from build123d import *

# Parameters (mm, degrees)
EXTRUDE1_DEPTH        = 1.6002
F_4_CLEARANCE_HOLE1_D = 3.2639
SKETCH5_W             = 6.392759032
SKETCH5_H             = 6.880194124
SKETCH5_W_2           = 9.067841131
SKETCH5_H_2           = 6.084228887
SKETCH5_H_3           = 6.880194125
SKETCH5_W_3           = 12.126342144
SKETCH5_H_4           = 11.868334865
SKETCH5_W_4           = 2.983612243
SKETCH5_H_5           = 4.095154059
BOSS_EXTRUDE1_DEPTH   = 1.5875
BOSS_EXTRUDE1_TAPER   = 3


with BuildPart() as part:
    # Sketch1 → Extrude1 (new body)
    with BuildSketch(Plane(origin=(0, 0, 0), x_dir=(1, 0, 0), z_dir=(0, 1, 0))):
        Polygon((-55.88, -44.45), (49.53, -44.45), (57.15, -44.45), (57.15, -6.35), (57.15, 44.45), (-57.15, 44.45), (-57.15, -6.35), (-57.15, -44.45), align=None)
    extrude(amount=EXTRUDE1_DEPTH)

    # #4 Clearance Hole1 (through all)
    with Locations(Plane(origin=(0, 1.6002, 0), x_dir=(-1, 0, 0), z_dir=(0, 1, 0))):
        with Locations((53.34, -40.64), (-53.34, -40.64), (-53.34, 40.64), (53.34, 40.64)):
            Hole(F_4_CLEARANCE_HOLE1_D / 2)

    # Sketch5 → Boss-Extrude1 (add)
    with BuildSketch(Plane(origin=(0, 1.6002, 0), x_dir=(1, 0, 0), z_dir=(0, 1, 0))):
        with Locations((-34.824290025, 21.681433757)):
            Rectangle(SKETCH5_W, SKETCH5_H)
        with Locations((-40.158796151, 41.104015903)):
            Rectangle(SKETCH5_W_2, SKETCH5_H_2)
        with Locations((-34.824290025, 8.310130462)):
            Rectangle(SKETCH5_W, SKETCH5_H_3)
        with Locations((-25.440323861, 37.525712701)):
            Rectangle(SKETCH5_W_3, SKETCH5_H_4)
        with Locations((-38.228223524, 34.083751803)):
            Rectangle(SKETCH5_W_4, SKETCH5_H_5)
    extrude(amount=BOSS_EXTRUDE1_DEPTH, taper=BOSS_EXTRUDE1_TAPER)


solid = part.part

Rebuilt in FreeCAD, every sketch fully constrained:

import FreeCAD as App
import Part
import Sketcher
from FreeCAD import Vector
Q = App.Units.Quantity


def add_polygon(sketch, points):
    """Adds a closed chain of lines whose ends are joined by coincident constraints."""
    first, n = sketch.GeometryCount, len(points)
    for a, b in zip(points, points[1:] + points[:1]):
        sketch.addGeometry(Part.LineSegment(App.Vector(*a, 0), App.Vector(*b, 0)), False)
    for i in range(n):
        sketch.addConstraint(Sketcher.Constraint("Coincident", first + i, 2, first + (i + 1) % n, 1))

doc = App.newDocument("Part")
body = doc.addObject("PartDesign::Body", "Body")

sketch1 = body.newObject("Sketcher::SketchObject", "Sketch")
sketch1.AttachmentSupport = (doc.getObject("XZ_Plane"), [""])
sketch1.MapMode = "FlatFace"
add_polygon(sketch1, [(57.15, 44.45), (57.15, -44.45), (-57.15, -44.45), (-57.15, 44.45)])
sketch1.addConstraint(Sketcher.Constraint("Vertical", 0))
sketch1.addConstraint(Sketcher.Constraint("Horizontal", 1))
sketch1.addConstraint(Sketcher.Constraint("Vertical", 2))
sketch1.addConstraint(Sketcher.Constraint("Horizontal", 3))
sketch1.addConstraint(Sketcher.Constraint("Symmetric", 0, 2, 2, 2, -1, 1))
sketch1.addConstraint(Sketcher.Constraint("DistanceX", 1, 2, 1, 1, Q("4.5 in")))
sketch1.addConstraint(Sketcher.Constraint("DistanceY", 0, 2, 0, 1, Q("3.5 in")))
pad1 = body.newObject("PartDesign::Pad", "Pad")
pad1.Profile = sketch1
pad1.Length = Q("0.063 in")
pad1.Reversed = True

sketch2 = body.newObject("Sketcher::SketchObject", "Sketch001")
sketch2.AttachmentSupport = (doc.getObject("XZ_Plane"), [""])
sketch2.MapMode = "FlatFace"
sketch2.AttachmentOffset = App.Placement(Vector(0, 0, -0.063 * 25.4), App.Rotation())
sketch2.addGeometry(Part.Circle(Vector(-53.34, -40.64, 0), Vector(0, 0, 1), 1.63195), False)
sketch2.addGeometry(Part.Circle(Vector(53.34, -40.64, 0), Vector(0, 0, 1), 1.63195), False)
sketch2.addGeometry(Part.Circle(Vector(53.34, 40.64, 0), Vector(0, 0, 1), 1.63195), False)
sketch2.addGeometry(Part.Circle(Vector(-53.34, 40.64, 0), Vector(0, 0, 1), 1.63195), False)
sketch2.addConstraint(Sketcher.Constraint("Equal", 0, 1))
sketch2.addConstraint(Sketcher.Constraint("Equal", 1, 2))
sketch2.addConstraint(Sketcher.Constraint("Equal", 2, 3))
sketch2.addConstraint(Sketcher.Constraint("Symmetric", 0, 3, 2, 3, -1, 1))
sketch2.addConstraint(Sketcher.Constraint("Symmetric", 1, 3, 3, 3, -1, 1))
sketch2.addConstraint(Sketcher.Constraint("Symmetric", 0, 3, 1, 3, -2))
sketch2.addConstraint(Sketcher.Constraint("Diameter", 0, Q("0.1285 in")))
sketch2.addConstraint(Sketcher.Constraint("DistanceX", 0, 3, -1, 1, Q("2.1 in")))
sketch2.addConstraint(Sketcher.Constraint("DistanceY", 0, 3, -1, 1, Q("1.6 in")))
doc.recompute()
hole = body.newObject("PartDesign::Hole", "Hole")
hole.Profile = sketch2
hole.ThreadType = "None"
hole.Diameter = Q("0.1285 in")
hole.DepthType = "ThroughAll"
hole.Reversed = True

sketch3 = body.newObject("Sketcher::SketchObject", "Sketch002")
sketch3.AttachmentSupport = (doc.getObject("XZ_Plane"), [""])
sketch3.MapMode = "FlatFace"
sketch3.AttachmentOffset = App.Placement(Vector(0, 0, -0.063 * 25.4), App.Rotation())
add_polygon(sketch3, [(-38.02067, -25.121531), (-38.02067, -18.241337), (-31.627911, -18.241337), (-31.627911, -25.121531)])
add_polygon(sketch3, [(-44.692717, -44.14613), (-44.692717, -38.061901), (-35.624876, -38.061901), (-35.624876, -44.14613)])
add_polygon(sketch3, [(-38.02067, -11.750228), (-38.02067, -4.870033), (-31.627911, -4.870033), (-31.627911, -11.750228)])
add_polygon(sketch3, [(-31.503495, -43.45988), (-31.503495, -31.591545), (-19.377153, -31.591545), (-19.377153, -43.45988)])
add_polygon(sketch3, [(-39.72003, -36.131329), (-39.72003, -32.036175), (-36.736417, -32.036175), (-36.736417, -36.131329)])
sketch3.addConstraint(Sketcher.Constraint("Vertical", 0))
sketch3.addConstraint(Sketcher.Constraint("Horizontal", 1))
sketch3.addConstraint(Sketcher.Constraint("Vertical", 2))
sketch3.addConstraint(Sketcher.Constraint("Horizontal", 3))
sketch3.addConstraint(Sketcher.Constraint("Vertical", 4))
sketch3.addConstraint(Sketcher.Constraint("Horizontal", 5))
sketch3.addConstraint(Sketcher.Constraint("Vertical", 6))
sketch3.addConstraint(Sketcher.Constraint("Horizontal", 7))
sketch3.addConstraint(Sketcher.Constraint("Vertical", 8))
sketch3.addConstraint(Sketcher.Constraint("Horizontal", 9))
sketch3.addConstraint(Sketcher.Constraint("Vertical", 10))
sketch3.addConstraint(Sketcher.Constraint("Horizontal", 11))
sketch3.addConstraint(Sketcher.Constraint("Vertical", 12))
sketch3.addConstraint(Sketcher.Constraint("Horizontal", 13))
sketch3.addConstraint(Sketcher.Constraint("Vertical", 14))
sketch3.addConstraint(Sketcher.Constraint("Horizontal", 15))
sketch3.addConstraint(Sketcher.Constraint("Vertical", 16))
sketch3.addConstraint(Sketcher.Constraint("Horizontal", 17))
sketch3.addConstraint(Sketcher.Constraint("Vertical", 18))
sketch3.addConstraint(Sketcher.Constraint("Horizontal", 19))
sketch3.addConstraint(Sketcher.Constraint("Vertical", 3, 2, 8, 2))
sketch3.addConstraint(Sketcher.Constraint("Vertical", 2, 2, 9, 2))
sketch3.addConstraint(Sketcher.Constraint("Equal", 2, 8))
sketch3.addConstraint(Sketcher.Constraint("DistanceY", 6, 2, 3, 2, Q("0.749 in")))
sketch3.addConstraint(Sketcher.Constraint("DistanceY", 4, 2, -1, 1, Q("1.4985001 in")))
sketch3.addConstraint(Sketcher.Constraint("DistanceX", 1, 1, 1, 2, 6.392759))
sketch3.addConstraint(Sketcher.Constraint("DistanceX", 5, 1, 5, 2, 9.067841))
sketch3.addConstraint(Sketcher.Constraint("DistanceY", 4, 1, 4, 2, 6.084229))
sketch3.addConstraint(Sketcher.Constraint("DistanceY", 6, 2, 18, 2, 8.014802))
sketch3.addConstraint(Sketcher.Constraint("DistanceX", 13, 1, 13, 2, 12.126342))
sketch3.addConstraint(Sketcher.Constraint("DistanceX", 17, 1, 17, 2, 2.983612))
sketch3.addConstraint(Sketcher.Constraint("DistanceY", 0, 1, 0, 2, 6.880194))
sketch3.addConstraint(Sketcher.Constraint("DistanceY", 12, 1, 12, 2, 11.868335))
sketch3.addConstraint(Sketcher.Constraint("DistanceY", 16, 1, 16, 2, 4.095154))
sketch3.addConstraint(Sketcher.Constraint("DistanceX", 0, 2, -1, 1, 38.02067))
sketch3.addConstraint(Sketcher.Constraint("DistanceY", 14, 2, -1, 1, 43.45988))
sketch3.addConstraint(Sketcher.Constraint("DistanceX", 16, 2, -1, 1, 39.72003))
sketch3.addConstraint(Sketcher.Constraint("DistanceY", 5, 2, 8, 2, 33.191868))
sketch3.addConstraint(Sketcher.Constraint("DistanceX", 5, 2, 12, 2, 4.121381))
sketch3.addConstraint(Sketcher.Constraint("DistanceX", 17, 2, 5, 2, 1.111542))
pad2 = body.newObject("PartDesign::Pad", "Pad001")
pad2.Profile = sketch3
pad2.Length = Q("0.0625 in")
pad2.Reversed = True
pad2.TaperAngle = -3

doc.recompute()
